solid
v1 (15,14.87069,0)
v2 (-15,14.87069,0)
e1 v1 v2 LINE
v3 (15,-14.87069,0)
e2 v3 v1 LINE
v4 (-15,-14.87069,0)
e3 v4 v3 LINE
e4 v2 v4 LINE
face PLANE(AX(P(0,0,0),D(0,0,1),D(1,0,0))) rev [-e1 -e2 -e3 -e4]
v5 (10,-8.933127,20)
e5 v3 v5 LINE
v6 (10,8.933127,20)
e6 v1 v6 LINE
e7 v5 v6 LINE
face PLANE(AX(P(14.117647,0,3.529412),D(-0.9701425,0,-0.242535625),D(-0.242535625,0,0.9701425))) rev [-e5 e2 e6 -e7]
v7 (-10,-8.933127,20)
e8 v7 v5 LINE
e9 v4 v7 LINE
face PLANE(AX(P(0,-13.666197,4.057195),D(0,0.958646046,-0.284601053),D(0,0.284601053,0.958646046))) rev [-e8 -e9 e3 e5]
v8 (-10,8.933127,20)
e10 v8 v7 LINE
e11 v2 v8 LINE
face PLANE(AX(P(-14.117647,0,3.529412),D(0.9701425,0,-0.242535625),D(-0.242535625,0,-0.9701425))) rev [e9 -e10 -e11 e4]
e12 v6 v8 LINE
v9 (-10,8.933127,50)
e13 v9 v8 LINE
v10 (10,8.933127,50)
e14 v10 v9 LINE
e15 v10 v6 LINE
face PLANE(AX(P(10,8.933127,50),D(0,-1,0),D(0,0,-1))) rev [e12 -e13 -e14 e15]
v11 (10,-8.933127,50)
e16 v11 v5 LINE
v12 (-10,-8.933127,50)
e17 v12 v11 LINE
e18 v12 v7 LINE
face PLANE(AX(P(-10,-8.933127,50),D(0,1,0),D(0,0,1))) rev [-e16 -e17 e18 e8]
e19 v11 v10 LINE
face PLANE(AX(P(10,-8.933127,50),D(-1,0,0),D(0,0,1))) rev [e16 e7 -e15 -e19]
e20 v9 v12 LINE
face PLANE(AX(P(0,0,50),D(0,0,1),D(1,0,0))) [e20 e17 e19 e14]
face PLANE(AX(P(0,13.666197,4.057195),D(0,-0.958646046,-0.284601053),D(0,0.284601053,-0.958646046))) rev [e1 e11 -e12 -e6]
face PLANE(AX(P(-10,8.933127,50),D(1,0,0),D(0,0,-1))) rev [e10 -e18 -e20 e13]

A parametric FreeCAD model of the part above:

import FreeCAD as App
import Part
import Sketcher

V = App.Vector

doc = App.newDocument("Part")
body = doc.addObject("PartDesign::Body", "Body")

sketch1 = body.newObject("Sketcher::SketchObject", "Sketch")
sketch1.AttachmentSupport = (doc.getObject("XY_Plane"), [""])
sketch1.MapMode = "FlatFace"
sketch1.addGeometry([
    Part.LineSegment(V(15, 15, 0), V(-15, 15, 0)),
    Part.LineSegment(V(-15, 15, 0), V(-15, -15, 0)),
    Part.LineSegment(V(-15, -15, 0), V(15, -15, 0)),
    Part.LineSegment(V(15, -15, 0), V(15, 15, 0)),
], False)
sketch1.addConstraint([
    Sketcher.Constraint("Coincident", 0, 2, 1, 1),
    Sketcher.Constraint("Coincident", 1, 2, 2, 1),
    Sketcher.Constraint("Coincident", 2, 2, 3, 1),
    Sketcher.Constraint("Coincident", 3, 2, 0, 1),
    Sketcher.Constraint("Horizontal", 0),
    Sketcher.Constraint("Vertical", 1),
    Sketcher.Constraint("Horizontal", 2),
    Sketcher.Constraint("Vertical", 3),
    Sketcher.Constraint("Symmetric", 0, 2, 2, 2, -1, 1),
    Sketcher.Constraint("DistanceX", 0, 2, 0, 1, 30.0),
    Sketcher.Constraint("DistanceY", 1, 2, 1, 1, 29.741379),
])

sketch2 = body.newObject("Sketcher::SketchObject", "Sketch001")
sketch2.AttachmentSupport = (doc.getObject("XY_Plane"), [""])
sketch2.MapMode = "FlatFace"
sketch2.AttachmentOffset = App.Placement(V(0, 0, 20), App.Rotation())
sketch2.addGeometry([
    Part.LineSegment(V(10, 9, 0), V(-10, 9, 0)),
    Part.LineSegment(V(-10, 9, 0), V(-10, -9, 0)),
    Part.LineSegment(V(-10, -9, 0), V(10, -9, 0)),
    Part.LineSegment(V(10, -9, 0), V(10, 9, 0)),
], False)
sketch2.addConstraint([
    Sketcher.Constraint("Coincident", 0, 2, 1, 1),
    Sketcher.Constraint("Coincident", 1, 2, 2, 1),
    Sketcher.Constraint("Coincident", 2, 2, 3, 1),
    Sketcher.Constraint("Coincident", 3, 2, 0, 1),
    Sketcher.Constraint("Horizontal", 0),
    Sketcher.Constraint("Vertical", 1),
    Sketcher.Constraint("Horizontal", 2),
    Sketcher.Constraint("Vertical", 3),
    Sketcher.Constraint("Symmetric", 0, 2, 2, 2, -1, 1),
    Sketcher.Constraint("DistanceX", 0, 2, 0, 1, 20.0),
    Sketcher.Constraint("DistanceY", 1, 2, 1, 1, 17.866254),
])

additiveloft = body.newObject("PartDesign::AdditiveLoft", "AdditiveLoft")
additiveloft.Profile = sketch1
additiveloft.Sections = [sketch2]

sketch3 = body.newObject("Sketcher::SketchObject", "Sketch002")
sketch3.AttachmentSupport = (doc.getObject("XY_Plane"), [""])
sketch3.MapMode = "FlatFace"
sketch3.AttachmentOffset = App.Placement(V(0, 0, 20), App.Rotation())
sketch3.addGeometry([
    Part.LineSegment(V(-10, 9, 0), V(-10, -9, 0)),
    Part.LineSegment(V(-10, -9, 0), V(10, -9, 0)),
    Part.LineSegment(V(10, -9, 0), V(10, 9, 0)),
    Part.LineSegment(V(10, 9, 0), V(-10, 9, 0)),
], False)
sketch3.addConstraint([
    Sketcher.Constraint("Coincident", 0, 2, 1, 1),
    Sketcher.Constraint("Coincident", 1, 2, 2, 1),
    Sketcher.Constraint("Coincident", 2, 2, 3, 1),
    Sketcher.Constraint("Coincident", 3, 2, 0, 1),
    Sketcher.Constraint("Vertical", 0),
    Sketcher.Constraint("Horizontal", 1),
    Sketcher.Constraint("Vertical", 2),
    Sketcher.Constraint("Horizontal", 3),
    Sketcher.Constraint("Symmetric", 0, 2, 2, 2, -1, 1),
    Sketcher.Constraint("DistanceX", 1, 1, 1, 2, 20.0),
    Sketcher.Constraint("DistanceY", 0, 2, 0, 1, 17.866254),
])
pad1 = body.newObject("PartDesign::Pad", "Pad")
pad1.Profile = sketch3
pad1.Length = 30

doc.recompute()
